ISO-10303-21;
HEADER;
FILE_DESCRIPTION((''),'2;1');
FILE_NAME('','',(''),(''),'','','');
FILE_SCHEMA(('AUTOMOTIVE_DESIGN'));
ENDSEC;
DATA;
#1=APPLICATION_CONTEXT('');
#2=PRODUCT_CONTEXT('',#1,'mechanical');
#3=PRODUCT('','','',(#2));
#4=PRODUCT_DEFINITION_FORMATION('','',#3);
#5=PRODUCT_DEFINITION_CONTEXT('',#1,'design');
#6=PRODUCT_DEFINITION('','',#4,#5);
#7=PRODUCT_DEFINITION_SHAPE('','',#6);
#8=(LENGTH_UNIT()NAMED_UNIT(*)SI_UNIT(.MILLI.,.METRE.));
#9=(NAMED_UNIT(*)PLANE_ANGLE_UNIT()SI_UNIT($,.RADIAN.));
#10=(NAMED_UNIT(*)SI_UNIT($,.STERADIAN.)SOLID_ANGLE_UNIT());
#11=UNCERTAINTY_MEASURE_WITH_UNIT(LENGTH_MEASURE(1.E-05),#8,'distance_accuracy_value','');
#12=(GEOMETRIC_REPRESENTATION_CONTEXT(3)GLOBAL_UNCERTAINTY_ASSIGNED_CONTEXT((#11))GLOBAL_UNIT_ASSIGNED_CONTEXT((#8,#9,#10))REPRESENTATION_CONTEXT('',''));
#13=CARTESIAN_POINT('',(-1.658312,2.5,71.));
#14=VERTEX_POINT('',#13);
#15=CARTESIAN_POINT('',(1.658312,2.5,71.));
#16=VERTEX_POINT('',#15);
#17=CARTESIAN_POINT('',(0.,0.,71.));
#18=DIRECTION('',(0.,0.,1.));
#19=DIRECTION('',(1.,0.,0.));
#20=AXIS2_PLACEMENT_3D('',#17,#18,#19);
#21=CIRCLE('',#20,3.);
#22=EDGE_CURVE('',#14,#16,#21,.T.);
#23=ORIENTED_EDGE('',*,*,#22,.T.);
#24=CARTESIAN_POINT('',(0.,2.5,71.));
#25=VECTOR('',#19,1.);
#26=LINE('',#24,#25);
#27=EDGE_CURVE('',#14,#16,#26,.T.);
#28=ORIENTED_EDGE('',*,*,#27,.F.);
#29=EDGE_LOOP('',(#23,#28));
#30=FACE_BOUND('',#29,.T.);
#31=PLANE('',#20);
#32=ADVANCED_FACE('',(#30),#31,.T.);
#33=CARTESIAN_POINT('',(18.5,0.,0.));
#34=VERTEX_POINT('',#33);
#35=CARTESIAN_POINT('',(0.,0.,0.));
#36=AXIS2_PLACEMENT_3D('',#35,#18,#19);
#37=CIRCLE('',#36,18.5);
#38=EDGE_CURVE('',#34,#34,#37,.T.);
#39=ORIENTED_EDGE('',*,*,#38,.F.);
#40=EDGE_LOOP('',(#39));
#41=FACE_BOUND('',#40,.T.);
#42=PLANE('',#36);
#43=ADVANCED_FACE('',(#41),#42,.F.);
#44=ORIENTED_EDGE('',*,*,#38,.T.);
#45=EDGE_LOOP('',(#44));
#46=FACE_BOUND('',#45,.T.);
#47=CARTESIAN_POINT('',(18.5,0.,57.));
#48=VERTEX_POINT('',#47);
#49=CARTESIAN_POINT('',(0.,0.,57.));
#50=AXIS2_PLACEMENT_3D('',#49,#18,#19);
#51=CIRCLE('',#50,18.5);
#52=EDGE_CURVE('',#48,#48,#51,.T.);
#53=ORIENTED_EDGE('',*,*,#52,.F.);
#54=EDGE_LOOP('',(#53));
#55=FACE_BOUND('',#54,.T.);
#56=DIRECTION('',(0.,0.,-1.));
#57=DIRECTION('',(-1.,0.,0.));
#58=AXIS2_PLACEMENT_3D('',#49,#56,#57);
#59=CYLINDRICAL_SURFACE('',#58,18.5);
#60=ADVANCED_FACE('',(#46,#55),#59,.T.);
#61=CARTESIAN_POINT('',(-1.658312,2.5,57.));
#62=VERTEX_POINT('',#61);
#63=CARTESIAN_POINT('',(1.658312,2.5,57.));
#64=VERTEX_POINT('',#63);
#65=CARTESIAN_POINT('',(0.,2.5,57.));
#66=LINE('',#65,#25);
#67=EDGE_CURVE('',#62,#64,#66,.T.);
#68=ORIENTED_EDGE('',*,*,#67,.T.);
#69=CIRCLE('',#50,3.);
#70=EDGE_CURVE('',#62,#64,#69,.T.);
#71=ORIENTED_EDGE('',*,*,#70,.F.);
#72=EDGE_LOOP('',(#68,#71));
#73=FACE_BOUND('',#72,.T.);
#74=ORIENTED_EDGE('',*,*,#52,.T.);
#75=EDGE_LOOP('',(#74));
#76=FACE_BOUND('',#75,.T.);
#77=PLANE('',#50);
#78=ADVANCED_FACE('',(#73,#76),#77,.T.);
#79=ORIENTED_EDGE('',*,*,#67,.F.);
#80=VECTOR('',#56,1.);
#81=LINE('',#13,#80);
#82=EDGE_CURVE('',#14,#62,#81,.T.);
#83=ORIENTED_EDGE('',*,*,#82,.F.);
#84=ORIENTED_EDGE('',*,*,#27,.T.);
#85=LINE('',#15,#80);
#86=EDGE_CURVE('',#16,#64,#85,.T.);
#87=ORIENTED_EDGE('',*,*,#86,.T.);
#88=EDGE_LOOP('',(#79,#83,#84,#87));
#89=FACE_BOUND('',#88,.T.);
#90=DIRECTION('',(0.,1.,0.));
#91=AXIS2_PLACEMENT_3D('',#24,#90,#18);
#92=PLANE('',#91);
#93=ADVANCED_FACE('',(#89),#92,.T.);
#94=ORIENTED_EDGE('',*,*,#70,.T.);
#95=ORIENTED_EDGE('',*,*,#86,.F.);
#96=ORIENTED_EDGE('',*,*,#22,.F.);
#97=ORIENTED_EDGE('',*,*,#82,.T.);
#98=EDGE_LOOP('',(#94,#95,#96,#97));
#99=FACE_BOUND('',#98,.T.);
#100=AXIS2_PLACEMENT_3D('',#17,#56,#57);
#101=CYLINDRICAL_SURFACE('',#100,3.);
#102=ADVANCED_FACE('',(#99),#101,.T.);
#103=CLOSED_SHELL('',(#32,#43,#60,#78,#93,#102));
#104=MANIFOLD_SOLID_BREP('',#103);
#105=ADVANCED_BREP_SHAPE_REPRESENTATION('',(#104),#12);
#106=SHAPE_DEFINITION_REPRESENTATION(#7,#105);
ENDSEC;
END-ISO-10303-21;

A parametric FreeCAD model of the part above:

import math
import FreeCAD as App
import Part
import Sketcher
from FreeCAD import Vector

doc = App.newDocument("Part")
body = doc.addObject("PartDesign::Body", "Body")

sketch1 = doc.addObject("Sketcher::SketchObject", "Sketch")
body.addObject(sketch1)
sketch1.AttachmentSupport = (doc.XY_Plane, [""])
sketch1.MapMode = "FlatFace"
sketch1.addGeometry(Part.Circle(Vector(0, 0, 0), Vector(0, 0, 1), 18), False)
sketch1.addConstraint([
    Sketcher.Constraint("Coincident", 0, 3, -1, 1),
    Sketcher.Constraint("Diameter", 0, 37.0),
])
pad1 = doc.addObject("PartDesign::Pad", "Pad")
body.addObject(pad1)
pad1.Profile = sketch1
pad1.Length = 57

sketch2 = doc.addObject("Sketcher::SketchObject", "Sketch001")
body.addObject(sketch2)
sketch2.AttachmentSupport = (doc.XY_Plane, [""])
sketch2.MapMode = "FlatFace"
sketch2.AttachmentOffset = App.Placement(Vector(0, 0, 57), App.Rotation())
sketch2.addGeometry([
    Part.LineSegment(Vector(1.7, 2.5, 0), Vector(-1.7, 2.5, 0)),
    Part.ArcOfCircle(Part.Circle(Vector(0, 0, 0), Vector(0, 0, 1), 3), math.radians(124), math.radians(360)),
    Part.ArcOfCircle(Part.Circle(Vector(0, 0, 0), Vector(0, 0, 1), 3), math.radians(0), math.radians(56)),
], False)
sketch2.addConstraint([
    Sketcher.Constraint("Coincident", 0, 2, 1, 1),
    Sketcher.Constraint("Tangent", 1, 2, 2, 1),
    Sketcher.Constraint("Coincident", 2, 2, 0, 1),
    Sketcher.Constraint("Horizontal", 0),
    Sketcher.Constraint("Coincident", 1, 3, -1, 1),
    Sketcher.Constraint("Equal", 1, 2),
    Sketcher.Constraint("PointOnObject", 1, 2, -1),
    Sketcher.Constraint("Radius", 1, 3.0),
    Sketcher.Constraint("DistanceY", -1, 1, 0, 2, 2.5),
])
pad2 = doc.addObject("PartDesign::Pad", "Pad001")
body.addObject(pad2)
pad2.Profile = sketch2
pad2.Length = 14

doc.recompute()
